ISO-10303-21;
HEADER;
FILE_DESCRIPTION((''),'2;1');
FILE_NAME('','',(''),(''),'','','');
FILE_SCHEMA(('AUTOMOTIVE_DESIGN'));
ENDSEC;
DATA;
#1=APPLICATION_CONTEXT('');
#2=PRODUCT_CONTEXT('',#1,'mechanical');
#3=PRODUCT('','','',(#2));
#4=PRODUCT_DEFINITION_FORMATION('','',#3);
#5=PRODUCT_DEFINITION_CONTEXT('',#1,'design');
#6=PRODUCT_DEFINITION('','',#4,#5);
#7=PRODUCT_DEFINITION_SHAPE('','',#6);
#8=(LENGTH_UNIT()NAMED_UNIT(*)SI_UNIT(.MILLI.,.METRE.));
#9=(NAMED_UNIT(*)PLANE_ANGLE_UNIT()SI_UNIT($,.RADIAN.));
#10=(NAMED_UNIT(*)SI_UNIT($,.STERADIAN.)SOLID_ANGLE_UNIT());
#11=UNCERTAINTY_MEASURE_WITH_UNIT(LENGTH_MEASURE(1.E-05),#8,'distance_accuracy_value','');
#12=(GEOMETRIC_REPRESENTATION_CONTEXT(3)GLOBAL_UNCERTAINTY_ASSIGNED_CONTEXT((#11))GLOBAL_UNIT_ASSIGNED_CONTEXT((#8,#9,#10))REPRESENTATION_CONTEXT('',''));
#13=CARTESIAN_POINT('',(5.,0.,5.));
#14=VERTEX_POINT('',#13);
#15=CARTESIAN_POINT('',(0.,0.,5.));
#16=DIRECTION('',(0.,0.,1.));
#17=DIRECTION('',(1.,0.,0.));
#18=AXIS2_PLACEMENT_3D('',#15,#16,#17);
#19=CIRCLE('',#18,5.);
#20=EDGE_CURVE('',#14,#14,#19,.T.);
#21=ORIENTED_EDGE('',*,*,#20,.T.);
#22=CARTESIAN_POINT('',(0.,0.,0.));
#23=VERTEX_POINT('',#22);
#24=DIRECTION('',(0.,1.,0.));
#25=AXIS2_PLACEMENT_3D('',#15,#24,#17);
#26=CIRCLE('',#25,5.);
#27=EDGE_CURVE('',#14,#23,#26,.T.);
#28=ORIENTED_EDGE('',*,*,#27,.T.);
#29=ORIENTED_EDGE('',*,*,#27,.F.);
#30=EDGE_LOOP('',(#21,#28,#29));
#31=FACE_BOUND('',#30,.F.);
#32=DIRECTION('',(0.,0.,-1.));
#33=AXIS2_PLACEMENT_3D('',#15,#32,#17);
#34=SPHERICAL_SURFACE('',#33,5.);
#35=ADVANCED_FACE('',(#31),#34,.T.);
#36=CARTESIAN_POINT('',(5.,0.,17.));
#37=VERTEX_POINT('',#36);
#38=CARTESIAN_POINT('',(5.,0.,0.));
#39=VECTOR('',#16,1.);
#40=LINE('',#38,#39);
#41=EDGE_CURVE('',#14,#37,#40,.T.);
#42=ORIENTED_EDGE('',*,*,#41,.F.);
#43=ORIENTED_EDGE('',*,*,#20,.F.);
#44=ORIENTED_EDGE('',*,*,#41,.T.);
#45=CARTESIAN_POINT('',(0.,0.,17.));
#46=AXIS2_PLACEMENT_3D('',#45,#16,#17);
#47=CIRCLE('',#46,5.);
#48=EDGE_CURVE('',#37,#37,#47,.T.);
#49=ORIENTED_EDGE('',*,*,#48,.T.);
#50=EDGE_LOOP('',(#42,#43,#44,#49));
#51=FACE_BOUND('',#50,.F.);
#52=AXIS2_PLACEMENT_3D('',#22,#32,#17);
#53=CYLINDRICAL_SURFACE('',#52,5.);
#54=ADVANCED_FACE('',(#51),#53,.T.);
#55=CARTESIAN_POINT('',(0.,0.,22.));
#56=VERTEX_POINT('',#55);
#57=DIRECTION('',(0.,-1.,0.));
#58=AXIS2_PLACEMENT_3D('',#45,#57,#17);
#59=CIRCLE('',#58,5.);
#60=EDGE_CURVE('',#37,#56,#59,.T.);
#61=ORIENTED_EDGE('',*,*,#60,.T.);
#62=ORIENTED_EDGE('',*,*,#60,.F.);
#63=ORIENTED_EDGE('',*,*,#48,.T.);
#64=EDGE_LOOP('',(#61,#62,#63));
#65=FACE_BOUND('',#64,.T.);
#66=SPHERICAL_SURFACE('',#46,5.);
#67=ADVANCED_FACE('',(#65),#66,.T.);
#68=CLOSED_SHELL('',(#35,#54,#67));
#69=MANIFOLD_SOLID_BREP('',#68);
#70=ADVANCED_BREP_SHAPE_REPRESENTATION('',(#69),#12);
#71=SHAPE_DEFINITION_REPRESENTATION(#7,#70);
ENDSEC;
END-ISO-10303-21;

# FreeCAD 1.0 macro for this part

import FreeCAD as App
import Part
import Sketcher


def edges_at(feature, points):
    """Names of the edges that pass closest to the given points."""
    edges = feature.Shape.Edges
    near = lambda p: min(range(len(edges)), key=lambda i: edges[i].distToShape(Part.Vertex(*p))[0])
    return sorted({f"Edge{near(p) + 1}" for p in points})

doc = App.newDocument("Part")
body = doc.addObject("PartDesign::Body", "Body")

sketch1 = doc.addObject("Sketcher::SketchObject", "Sketch")
body.addObject(sketch1)
sketch1.AttachmentSupport = (doc.XY_Plane, [""])
sketch1.MapMode = "FlatFace"
sketch1.addGeometry(Part.Circle(App.Vector(0, 0, 0), App.Vector(0, 0, 1), 5), False)
sketch1.addConstraint([
    Sketcher.Constraint("Coincident", 0, 3, -1, 1),
    Sketcher.Constraint("Diameter", 0, 10.0),
])
pad1 = doc.addObject("PartDesign::Pad", "Pad")
body.addObject(pad1)
pad1.Profile = sketch1
pad1.Length = 22
doc.recompute()

fillet = doc.addObject("PartDesign::Fillet", "Fillet")
body.addObject(fillet)
fillet.Base = (pad1, edges_at(pad1, [(-5, 0, 22), (-5, 0, 0)]))
fillet.Radius = 5

doc.recompute()
